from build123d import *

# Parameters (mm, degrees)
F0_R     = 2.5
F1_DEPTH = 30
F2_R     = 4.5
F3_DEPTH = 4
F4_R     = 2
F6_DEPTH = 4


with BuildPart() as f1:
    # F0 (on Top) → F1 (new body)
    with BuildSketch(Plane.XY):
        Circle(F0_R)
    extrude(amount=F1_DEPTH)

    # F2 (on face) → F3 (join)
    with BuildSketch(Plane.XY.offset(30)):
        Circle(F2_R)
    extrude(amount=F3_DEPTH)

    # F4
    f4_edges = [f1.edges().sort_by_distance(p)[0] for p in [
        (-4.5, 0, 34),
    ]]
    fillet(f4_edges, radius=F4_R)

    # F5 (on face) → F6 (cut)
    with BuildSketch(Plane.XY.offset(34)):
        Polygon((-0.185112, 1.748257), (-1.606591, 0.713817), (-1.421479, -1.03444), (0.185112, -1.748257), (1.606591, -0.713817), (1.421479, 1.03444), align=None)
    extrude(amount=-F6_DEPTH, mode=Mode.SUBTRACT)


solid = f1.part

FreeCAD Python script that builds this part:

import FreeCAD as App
import Part
import Sketcher
Q = App.Units.Quantity


def edges_at(feature, points):
    """Names of the edges that pass closest to the given points."""
    edges = feature.Shape.Edges
    near = lambda p: min(range(len(edges)), key=lambda i: edges[i].distToShape(Part.Vertex(*p))[0])
    return sorted({f"Edge{near(p) + 1}" for p in points})


def add_polygon(sketch, points):
    """Adds a closed chain of lines whose ends are joined by coincident constraints."""
    first, n = sketch.GeometryCount, len(points)
    for a, b in zip(points, points[1:] + points[:1]):
        sketch.addGeometry(Part.LineSegment(App.Vector(*a, 0), App.Vector(*b, 0)), False)
    for i in range(n):
        sketch.addConstraint(Sketcher.Constraint("Coincident", first + i, 2, first + (i + 1) % n, 1))

doc = App.newDocument("Part")
body = doc.addObject("PartDesign::Body", "Body")

sketch1 = body.newObject("Sketcher::SketchObject", "Sketch")
sketch1.AttachmentSupport = (doc.getObject("XY_Plane"), [""])
sketch1.MapMode = "FlatFace"
sketch1.addGeometry(Part.Circle(App.Vector(0, 0, 0), App.Vector(0, 0, 1), 2.5), False)
sketch1.addConstraint(Sketcher.Constraint("Coincident", 0, 3, -1, 1))
sketch1.addConstraint(Sketcher.Constraint("Diameter", 0, Q("5 mm")))
pad1 = body.newObject("PartDesign::Pad", "Pad")
pad1.Profile = sketch1
pad1.Length = 30

sketch2 = body.newObject("Sketcher::SketchObject", "Sketch001")
sketch2.AttachmentSupport = (doc.getObject("XY_Plane"), [""])
sketch2.MapMode = "FlatFace"
sketch2.AttachmentOffset = App.Placement(App.Vector(0, 0, 30), App.Rotation())
sketch2.addGeometry(Part.Circle(App.Vector(0, 0, 0), App.Vector(0, 0, 1), 4.5), False)
sketch2.addConstraint(Sketcher.Constraint("Coincident", 0, 3, -1, 1))
sketch2.addConstraint(Sketcher.Constraint("Diameter", 0, Q("9 mm")))
pad2 = body.newObject("PartDesign::Pad", "Pad001")
pad2.Profile = sketch2
pad2.Length = 4
doc.recompute()

fillet = body.newObject("PartDesign::Fillet", "Fillet")
fillet.Base = (pad2, edges_at(pad2, [(-4.5, 0, 34)]))
fillet.Radius = 2

sketch3 = body.newObject("Sketcher::SketchObject", "Sketch002")
sketch3.AttachmentSupport = (doc.getObject("XY_Plane"), [""])
sketch3.MapMode = "FlatFace"
sketch3.AttachmentOffset = App.Placement(App.Vector(0, 0, 34), App.Rotation())
add_polygon(sketch3, [(-0.2, 1.7), (-1.6, 0.7), (-1.4, -1), (0.2, -1.7), (1.6, -0.7), (1.4, 1)])
sketch3.addConstraint(Sketcher.Constraint("Symmetric", 0, 2, 3, 2, -1, 1))
sketch3.addConstraint(Sketcher.Constraint("Symmetric", 1, 2, 4, 2, -1, 1))
sketch3.addConstraint(Sketcher.Constraint("Symmetric", 2, 2, 5, 2, -1, 1))
sketch3.addConstraint(Sketcher.Constraint("Equal", 0, 1))
sketch3.addConstraint(Sketcher.Constraint("Equal", 1, 2))
sketch3.addConstraint(Sketcher.Constraint("Distance", 0, Q("1.75803 mm")))
sketch3.addConstraint(Sketcher.Constraint("DistanceX", 0, 2, -1, 1, Q("1.606591 mm")))
sketch3.addConstraint(Sketcher.Constraint("DistanceX", 1, 2, -1, 1, Q("1.421479 mm")))
sketch3.addConstraint(Sketcher.Constraint("DistanceY", 1, 2, -1, 1, Q("1.03444 mm")))
pocket1 = body.newObject("PartDesign::Pocket", "Pocket")
pocket1.Profile = sketch3
pocket1.Length = 4

doc.recompute()
